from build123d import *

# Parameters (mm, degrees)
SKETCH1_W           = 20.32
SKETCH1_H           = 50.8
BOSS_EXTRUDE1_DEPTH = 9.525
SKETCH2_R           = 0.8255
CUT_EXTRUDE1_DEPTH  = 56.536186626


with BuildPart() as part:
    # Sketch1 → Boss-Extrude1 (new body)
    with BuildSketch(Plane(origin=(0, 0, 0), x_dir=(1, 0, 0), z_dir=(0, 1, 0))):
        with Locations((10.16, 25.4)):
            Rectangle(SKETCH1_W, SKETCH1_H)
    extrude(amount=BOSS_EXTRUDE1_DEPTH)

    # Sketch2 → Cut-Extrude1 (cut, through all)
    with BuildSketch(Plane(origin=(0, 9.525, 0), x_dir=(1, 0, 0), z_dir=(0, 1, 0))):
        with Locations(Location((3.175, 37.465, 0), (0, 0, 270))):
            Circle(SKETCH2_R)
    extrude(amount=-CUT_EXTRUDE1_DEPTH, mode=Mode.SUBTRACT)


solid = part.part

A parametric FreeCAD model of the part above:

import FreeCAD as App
import Part
import Sketcher

V = App.Vector
Q = App.Units.Quantity

doc = App.newDocument("Part")
body = doc.addObject("PartDesign::Body", "Body")

# Sketch on XZ plane
sketch1 = body.newObject("Sketcher::SketchObject", "Sketch")
sketch1.AttachmentSupport = (doc.getObject("XZ_Plane"), [""])
sketch1.MapMode = "FlatFace"
sketch1.addGeometry(Part.LineSegment(V(0, -50.8, 0), V(0, 0, 0)), False)
sketch1.addGeometry(Part.LineSegment(V(0, 0, 0), V(20.32, 0, 0)), False)
sketch1.addGeometry(Part.LineSegment(V(20.32, 0, 0), V(20.32, -50.8, 0)), False)
sketch1.addGeometry(Part.LineSegment(V(20.32, -50.8, 0), V(0, -50.8, 0)), False)
sketch1.addConstraint(Sketcher.Constraint("Coincident", 0, 2, 1, 1))
sketch1.addConstraint(Sketcher.Constraint("Coincident", 1, 2, 2, 1))
sketch1.addConstraint(Sketcher.Constraint("Coincident", 2, 2, 3, 1))
sketch1.addConstraint(Sketcher.Constraint("Coincident", 3, 2, 0, 1))
sketch1.addConstraint(Sketcher.Constraint("Vertical", 0))
sketch1.addConstraint(Sketcher.Constraint("Horizontal", 1))
sketch1.addConstraint(Sketcher.Constraint("Vertical", 2))
sketch1.addConstraint(Sketcher.Constraint("Horizontal", 3))
sketch1.addConstraint(Sketcher.Constraint("Coincident", 0, 2, -1, 1))
sketch1.addConstraint(Sketcher.Constraint("DistanceY", 0, 1, 0, 2, Q("2 in")))
sketch1.addConstraint(Sketcher.Constraint("DistanceX", 1, 1, 1, 2, Q("0.8 in")))
pad1 = body.newObject("PartDesign::Pad", "Pad")
pad1.Profile = sketch1
pad1.Length = Q("0.375 in")
pad1.Reversed = True

# Sketch on XZ plane
sketch2 = body.newObject("Sketcher::SketchObject", "Sketch001")
sketch2.AttachmentSupport = (doc.getObject("XZ_Plane"), [""])
sketch2.MapMode = "FlatFace"
sketch2.AttachmentOffset = App.Placement(V(0, 0, -0.375 * 25.4), App.Rotation())
sketch2.addGeometry(Part.Circle(V(3.175, -37.465, 0), V(0, 0, 1), 0.8255), False)
sketch2.addConstraint(Sketcher.Constraint("Diameter", 0, Q("0.065 in")))
sketch2.addConstraint(Sketcher.Constraint("DistanceX", -1, 1, 0, 3, Q("0.125 in")))
sketch2.addConstraint(Sketcher.Constraint("DistanceY", 0, 3, -1, 1, Q("1.475 in")))
pocket1 = body.newObject("PartDesign::Pocket", "Pocket")
pocket1.Profile = sketch2
pocket1.Type = "ThroughAll"
pocket1.Reversed = True

doc.recompute()
